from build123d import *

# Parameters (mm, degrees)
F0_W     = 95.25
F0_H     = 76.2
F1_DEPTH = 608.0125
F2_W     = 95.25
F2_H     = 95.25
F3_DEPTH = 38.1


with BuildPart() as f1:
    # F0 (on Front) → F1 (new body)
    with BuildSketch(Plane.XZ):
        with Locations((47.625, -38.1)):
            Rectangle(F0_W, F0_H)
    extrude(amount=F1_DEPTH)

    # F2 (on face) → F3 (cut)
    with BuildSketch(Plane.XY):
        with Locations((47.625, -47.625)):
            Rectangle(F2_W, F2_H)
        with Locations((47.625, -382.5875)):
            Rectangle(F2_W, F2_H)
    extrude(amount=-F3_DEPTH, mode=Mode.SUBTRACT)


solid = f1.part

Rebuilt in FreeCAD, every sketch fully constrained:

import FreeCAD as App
import Part
import Sketcher
Q = App.Units.Quantity


def add_polygon(sketch, points):
    """Adds a closed chain of lines whose ends are joined by coincident constraints."""
    first, n = sketch.GeometryCount, len(points)
    for a, b in zip(points, points[1:] + points[:1]):
        sketch.addGeometry(Part.LineSegment(App.Vector(*a, 0), App.Vector(*b, 0)), False)
    for i in range(n):
        sketch.addConstraint(Sketcher.Constraint("Coincident", first + i, 2, first + (i + 1) % n, 1))

doc = App.newDocument("Part")
params = doc.addObject("Spreadsheet::Sheet", "Params")
for row, (alias, value) in enumerate([
    ("sketch1_height", "3 in"),
    ("sketch1_width", "3.75 in"),
    ("pad1_length", "23.9375 in"),
    ("sketch2_width", "3.75 in"),
    ("pocket1_length", "1.5 in"),
], start=1):
    params.set(f"A{row}", alias)
    params.set(f"B{row}", "=" + value)
    params.setAlias(f"B{row}", alias)

body = doc.addObject("PartDesign::Body", "Body")

# Sketch on XZ plane
sketch1 = body.newObject("Sketcher::SketchObject", "Sketch")
sketch1.AttachmentSupport = (doc.getObject("XZ_Plane"), [""])
sketch1.MapMode = "FlatFace"
add_polygon(sketch1, [(0, 0), (0, -76.2), (95.25, -76.2), (95.25, 0)])  # lines 0-3
sketch1.addConstraint([
    Sketcher.Constraint("Vertical", 0),
    Sketcher.Constraint("Horizontal", 1),
    Sketcher.Constraint("Vertical", 2),
    Sketcher.Constraint("Horizontal", 3),
    Sketcher.Constraint("Coincident", 3, 2, -1, 1),
    Sketcher.Constraint("DistanceY", 0, 2, 0, 1, Q("3 in")),
    Sketcher.Constraint("DistanceX", 1, 1, 1, 2, Q("3.75 in")),
])
sketch1.setExpression("Constraints[9]", "Params.sketch1_height")
sketch1.setExpression("Constraints[10]", "Params.sketch1_width")
pad1 = body.newObject("PartDesign::Pad", "Pad")
pad1.Profile = sketch1
pad1.setExpression("Length", "Params.pad1_length")

# Sketch on XY plane
sketch2 = body.newObject("Sketcher::SketchObject", "Sketch001")
sketch2.AttachmentSupport = (doc.getObject("XY_Plane"), [""])
sketch2.MapMode = "FlatFace"
add_polygon(sketch2, [(0, 0), (0, -95.25), (95.25, -95.25), (95.25, 0)])  # lines 0-3
add_polygon(sketch2, [(0, -334.9625), (0, -430.2125), (95.25, -430.2125), (95.25, -334.9625)])  # lines 4-7
sketch2.addConstraint([
    Sketcher.Constraint("Vertical", 0),
    Sketcher.Constraint("Horizontal", 1),
    Sketcher.Constraint("Vertical", 2),
    Sketcher.Constraint("Horizontal", 3),
    Sketcher.Constraint("Vertical", 4),
    Sketcher.Constraint("Horizontal", 5),
    Sketcher.Constraint("Vertical", 6),
    Sketcher.Constraint("Horizontal", 7),
    Sketcher.Constraint("Coincident", 3, 2, -1, 1),
    Sketcher.Constraint("PointOnObject", 4, 2, -2),
    Sketcher.Constraint("Vertical", 2, 2, 5, 2),
    Sketcher.Constraint("Equal", 7, 0),
    Sketcher.Constraint("Equal", 2, 4),
    Sketcher.Constraint("DistanceX", 1, 1, 1, 2, Q("3.75 in")),
    Sketcher.Constraint("DistanceY", 4, 2, -1, 1, Q("16.9375 in")),
])
sketch2.setExpression("Constraints[21]", "Params.sketch2_width")
pocket1 = body.newObject("PartDesign::Pocket", "Pocket")
pocket1.Profile = sketch2
pocket1.setExpression("Length", "Params.pocket1_length")

doc.recompute()
